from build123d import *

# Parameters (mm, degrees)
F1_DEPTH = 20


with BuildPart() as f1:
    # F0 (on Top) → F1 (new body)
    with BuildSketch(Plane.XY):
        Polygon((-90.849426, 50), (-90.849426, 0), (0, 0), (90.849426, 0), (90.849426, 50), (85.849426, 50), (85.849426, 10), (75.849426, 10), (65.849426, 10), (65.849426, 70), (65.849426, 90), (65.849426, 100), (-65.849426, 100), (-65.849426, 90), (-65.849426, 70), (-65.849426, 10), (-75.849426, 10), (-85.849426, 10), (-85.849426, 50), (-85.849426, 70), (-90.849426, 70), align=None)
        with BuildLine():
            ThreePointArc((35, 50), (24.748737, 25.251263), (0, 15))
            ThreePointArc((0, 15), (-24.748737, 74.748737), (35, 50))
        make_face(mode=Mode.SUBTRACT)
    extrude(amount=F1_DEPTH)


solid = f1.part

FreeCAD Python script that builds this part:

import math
import FreeCAD as App
import Part
import Sketcher

V = App.Vector
Q = App.Units.Quantity


def add_polygon(sketch, points):
    """Adds a closed chain of lines whose ends are joined by coincident constraints."""
    first, n = sketch.GeometryCount, len(points)
    for a, b in zip(points, points[1:] + points[:1]):
        sketch.addGeometry(Part.LineSegment(App.Vector(*a, 0), App.Vector(*b, 0)), False)
    for i in range(n):
        sketch.addConstraint(Sketcher.Constraint("Coincident", first + i, 2, first + (i + 1) % n, 1))

doc = App.newDocument("Part")
params = doc.addObject("Spreadsheet::Sheet", "Params")
for row, (alias, value) in enumerate([
    ("sketch1_radius", "35 mm"),
    ("sketch1_width", "5 mm"),
    ("sketch1_width2", "20 mm"),
    ("sketch1_height", "50 mm"),
    ("sketch1_height2", "40 mm"),
    ("pad1_length", "20 mm"),
], start=1):
    params.set(f"A{row}", alias)
    params.set(f"B{row}", "=" + value)
    params.setAlias(f"B{row}", alias)

body = doc.addObject("PartDesign::Body", "Body")

# Sketch on XY plane
sketch1 = body.newObject("Sketcher::SketchObject", "Sketch")
sketch1.AttachmentSupport = (doc.getObject("XY_Plane"), [""])
sketch1.MapMode = "FlatFace"
add_polygon(sketch1, [(-91, 0), (91, 0), (91, 50), (86, 50), (86, 10), (66, 10), (66, 100), (-66, 100), (-66, 10), (-86, 10), (-86, 70), (-91, 70)])  # lines 0-11
sketch1.addGeometry(Part.ArcOfCircle(Part.Circle(V(0, 50, 0), V(0, 0, 1), 35), math.radians(0), math.radians(270)), False)  # 12
sketch1.addGeometry(Part.ArcOfCircle(Part.Circle(V(0, 50, 0), V(0, 0, 1), 35), math.radians(-90), math.radians(0)), False)  # 13
sketch1.addConstraint(Sketcher.Constraint("Tangent", 12, 1, 13, 2))
sketch1.addConstraint(Sketcher.Constraint("Coincident", 13, 1, 12, 2))
sketch1.addConstraint(Sketcher.Constraint("Horizontal", 0))
sketch1.addConstraint(Sketcher.Constraint("Vertical", 1))
sketch1.addConstraint(Sketcher.Constraint("Horizontal", 2))
sketch1.addConstraint(Sketcher.Constraint("Vertical", 3))
sketch1.addConstraint(Sketcher.Constraint("Horizontal", 4))
sketch1.addConstraint(Sketcher.Constraint("Vertical", 5))
sketch1.addConstraint(Sketcher.Constraint("Horizontal", 6))
sketch1.addConstraint(Sketcher.Constraint("Vertical", 7))
sketch1.addConstraint(Sketcher.Constraint("Horizontal", 8))
sketch1.addConstraint(Sketcher.Constraint("Vertical", 9))
sketch1.addConstraint(Sketcher.Constraint("Horizontal", 10))
sketch1.addConstraint(Sketcher.Constraint("Vertical", 11))
sketch1.addConstraint(Sketcher.Constraint("Symmetric", 0, 2, 11, 2, -1, 1))
sketch1.addConstraint(Sketcher.Constraint("Symmetric", 4, 2, 7, 2, -2))
sketch1.addConstraint(Sketcher.Constraint("PointOnObject", 12, 3, -2))
sketch1.addConstraint(Sketcher.Constraint("PointOnObject", 13, 1, -2))
sketch1.addConstraint(Sketcher.Constraint("Horizontal", 13, 3, 1, 2))
sketch1.addConstraint(Sketcher.Constraint("Horizontal", 2, 2, 12, 1))
sketch1.addConstraint(Sketcher.Constraint("Equal", 4, 8))
sketch1.addConstraint(Sketcher.Constraint("Radius", 12, Q("35 mm")))
sketch1.addConstraint(Sketcher.Constraint("DistanceX", 2, 2, 2, 1, Q("5 mm")))
sketch1.addConstraint(Sketcher.Constraint("DistanceX", 4, 2, 4, 1, Q("20 mm")))
sketch1.addConstraint(Sketcher.Constraint("DistanceY", 1, 1, 1, 2, Q("50 mm")))
sketch1.addConstraint(Sketcher.Constraint("DistanceY", 3, 2, 3, 1, Q("40 mm")))
sketch1.addConstraint(Sketcher.Constraint("DistanceY", 5, 1, 5, 2, Q("90 mm")))
sketch1.addConstraint(Sketcher.Constraint("DistanceY", 9, 1, 9, 2, Q("60 mm")))
sketch1.addConstraint(Sketcher.Constraint("DistanceX", 0, 1, 0, 2, Q("181.698852 mm")))
sketch1.setExpression("Constraints[33]", "Params.sketch1_radius")
sketch1.setExpression("Constraints[34]", "Params.sketch1_width")
sketch1.setExpression("Constraints[35]", "Params.sketch1_width2")
sketch1.setExpression("Constraints[36]", "Params.sketch1_height")
sketch1.setExpression("Constraints[37]", "Params.sketch1_height2")
pad1 = body.newObject("PartDesign::Pad", "Pad")
pad1.Profile = sketch1
pad1.setExpression("Length", "Params.pad1_length")

doc.recompute()
